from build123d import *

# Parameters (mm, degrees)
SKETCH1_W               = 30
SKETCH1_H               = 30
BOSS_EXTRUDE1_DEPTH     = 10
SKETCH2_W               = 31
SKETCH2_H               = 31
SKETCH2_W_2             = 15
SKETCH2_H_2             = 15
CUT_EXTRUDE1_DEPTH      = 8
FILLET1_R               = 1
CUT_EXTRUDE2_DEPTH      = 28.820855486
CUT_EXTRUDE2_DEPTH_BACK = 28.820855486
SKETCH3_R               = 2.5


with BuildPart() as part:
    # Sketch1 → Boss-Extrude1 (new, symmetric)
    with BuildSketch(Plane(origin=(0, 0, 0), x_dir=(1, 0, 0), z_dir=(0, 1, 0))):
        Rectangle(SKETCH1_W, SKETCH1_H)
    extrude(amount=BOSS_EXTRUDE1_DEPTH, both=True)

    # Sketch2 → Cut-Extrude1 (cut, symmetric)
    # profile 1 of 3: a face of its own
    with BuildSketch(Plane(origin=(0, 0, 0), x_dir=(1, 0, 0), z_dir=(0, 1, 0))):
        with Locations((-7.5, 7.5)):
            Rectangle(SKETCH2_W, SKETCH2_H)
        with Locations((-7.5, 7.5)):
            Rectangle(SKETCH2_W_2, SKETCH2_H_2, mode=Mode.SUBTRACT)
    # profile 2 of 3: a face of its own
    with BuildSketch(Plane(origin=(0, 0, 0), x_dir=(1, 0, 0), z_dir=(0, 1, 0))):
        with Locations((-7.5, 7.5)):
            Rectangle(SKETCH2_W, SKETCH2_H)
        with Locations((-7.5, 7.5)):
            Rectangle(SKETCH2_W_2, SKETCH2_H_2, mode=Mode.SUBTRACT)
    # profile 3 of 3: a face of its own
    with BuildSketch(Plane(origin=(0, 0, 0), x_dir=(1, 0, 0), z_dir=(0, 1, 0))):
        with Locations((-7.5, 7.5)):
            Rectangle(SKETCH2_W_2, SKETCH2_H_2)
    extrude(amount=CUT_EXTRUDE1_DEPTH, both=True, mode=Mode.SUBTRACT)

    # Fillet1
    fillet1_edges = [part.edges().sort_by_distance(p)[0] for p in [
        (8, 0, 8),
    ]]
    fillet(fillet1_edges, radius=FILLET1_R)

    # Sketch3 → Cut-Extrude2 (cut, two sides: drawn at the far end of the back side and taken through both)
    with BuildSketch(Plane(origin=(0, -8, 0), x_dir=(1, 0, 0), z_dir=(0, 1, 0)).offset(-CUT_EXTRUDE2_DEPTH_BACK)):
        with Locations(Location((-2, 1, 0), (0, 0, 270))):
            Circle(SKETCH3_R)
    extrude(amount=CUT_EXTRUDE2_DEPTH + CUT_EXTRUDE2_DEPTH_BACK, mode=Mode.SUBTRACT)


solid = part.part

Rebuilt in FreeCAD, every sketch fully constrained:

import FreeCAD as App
import Part
import Sketcher
from FreeCAD import Vector
Q = App.Units.Quantity


def edges_at(feature, points):
    """Names of the edges that pass closest to the given points."""
    edges = feature.Shape.Edges
    near = lambda p: min(range(len(edges)), key=lambda i: edges[i].distToShape(Part.Vertex(*p))[0])
    return sorted({f"Edge{near(p) + 1}" for p in points})


def add_polygon(sketch, points):
    """Adds a closed chain of lines whose ends are joined by coincident constraints."""
    first, n = sketch.GeometryCount, len(points)
    for a, b in zip(points, points[1:] + points[:1]):
        sketch.addGeometry(Part.LineSegment(App.Vector(*a, 0), App.Vector(*b, 0)), False)
    for i in range(n):
        sketch.addConstraint(Sketcher.Constraint("Coincident", first + i, 2, first + (i + 1) % n, 1))

doc = App.newDocument("Part")
params = doc.addObject("Spreadsheet::Sheet", "Params")
for row, (alias, value) in enumerate([
    ("sketch1_width", "30 mm"),
    ("pad1_length", "20 mm"),
    ("sketch2_width", "31 mm"),
    ("pocket1_length", "16 mm"),
    ("fillet_radius", "1 mm"),
    ("sketch3_diameter", "5 mm"),
], start=1):
    params.set(f"A{row}", alias)
    params.set(f"B{row}", "=" + value)
    params.setAlias(f"B{row}", alias)

body = doc.addObject("PartDesign::Body", "Body")

sketch1 = doc.addObject("Sketcher::SketchObject", "Sketch")
body.addObject(sketch1)
sketch1.AttachmentSupport = (doc.XZ_Plane, [""])
sketch1.MapMode = "FlatFace"
add_polygon(sketch1, [(-15, -15), (-15, 15), (15, 15), (15, -15)])
sketch1.addConstraint(Sketcher.Constraint("Vertical", 0))
sketch1.addConstraint(Sketcher.Constraint("Horizontal", 1))
sketch1.addConstraint(Sketcher.Constraint("Vertical", 2))
sketch1.addConstraint(Sketcher.Constraint("Horizontal", 3))
sketch1.addConstraint(Sketcher.Constraint("Symmetric", 0, 2, 2, 2, -1, 1))
sketch1.addConstraint(Sketcher.Constraint("Equal", 3, 0))
sketch1.addConstraint(Sketcher.Constraint("DistanceX", 1, 1, 1, 2, Q("30 mm")))
sketch1.setExpression("Constraints[10]", "Params.sketch1_width")
pad1 = doc.addObject("PartDesign::Pad", "Pad")
body.addObject(pad1)
pad1.Profile = sketch1
pad1.setExpression("Length", "Params.pad1_length")
pad1.Midplane = True

sketch2 = doc.addObject("Sketcher::SketchObject", "Sketch001")
body.addObject(sketch2)
sketch2.AttachmentSupport = (doc.XZ_Plane, [""])
sketch2.MapMode = "FlatFace"
add_polygon(sketch2, [(-23, -23), (-23, 8), (8, 8), (8, -23)])
sketch2.addConstraint(Sketcher.Constraint("Vertical", 0))
sketch2.addConstraint(Sketcher.Constraint("Horizontal", 1))
sketch2.addConstraint(Sketcher.Constraint("Vertical", 2))
sketch2.addConstraint(Sketcher.Constraint("Horizontal", 3))
sketch2.addConstraint(Sketcher.Constraint("Equal", 3, 0))
sketch2.addConstraint(Sketcher.Constraint("DistanceX", 1, 1, 1, 2, Q("31 mm")))
sketch2.addConstraint(Sketcher.Constraint("DistanceX", 0, 2, -1, 1, Q("23 mm")))
sketch2.addConstraint(Sketcher.Constraint("DistanceY", -1, 1, 0, 2, Q("8 mm")))
sketch2.setExpression("Constraints[9]", "Params.sketch2_width")
pocket1 = doc.addObject("PartDesign::Pocket", "Pocket")
body.addObject(pocket1)
pocket1.Profile = sketch2
pocket1.setExpression("Length", "Params.pocket1_length")
pocket1.Midplane = True
doc.recompute()

fillet = doc.addObject("PartDesign::Fillet", "Fillet")
body.addObject(fillet)
fillet.Base = (pocket1, edges_at(pocket1, [(8, 0, 8)]))
fillet.setExpression("Radius", "Params.fillet_radius")

sketch3 = doc.addObject("Sketcher::SketchObject", "Sketch002")
body.addObject(sketch3)
sketch3.AttachmentSupport = (doc.XZ_Plane, [""])
sketch3.MapMode = "FlatFace"
sketch3.AttachmentOffset = App.Placement(Vector(0, 0, 8), App.Rotation())
sketch3.addGeometry(Part.Circle(Vector(-2, -1, 0), Vector(0, 0, 1), 2.5), False)
sketch3.addConstraint(Sketcher.Constraint("Diameter", 0, Q("5 mm")))
sketch3.addConstraint(Sketcher.Constraint("DistanceX", 0, 3, -1, 1, Q("2 mm")))
sketch3.addConstraint(Sketcher.Constraint("DistanceY", 0, 3, -1, 1, Q("1 mm")))
sketch3.setExpression("Constraints[0]", "Params.sketch3_diameter")
pocket2 = doc.addObject("PartDesign::Pocket", "Pocket001")
body.addObject(pocket2)
pocket2.Profile = sketch3
pocket2.Type = "ThroughAll"
pocket2.Midplane = True

doc.recompute()
